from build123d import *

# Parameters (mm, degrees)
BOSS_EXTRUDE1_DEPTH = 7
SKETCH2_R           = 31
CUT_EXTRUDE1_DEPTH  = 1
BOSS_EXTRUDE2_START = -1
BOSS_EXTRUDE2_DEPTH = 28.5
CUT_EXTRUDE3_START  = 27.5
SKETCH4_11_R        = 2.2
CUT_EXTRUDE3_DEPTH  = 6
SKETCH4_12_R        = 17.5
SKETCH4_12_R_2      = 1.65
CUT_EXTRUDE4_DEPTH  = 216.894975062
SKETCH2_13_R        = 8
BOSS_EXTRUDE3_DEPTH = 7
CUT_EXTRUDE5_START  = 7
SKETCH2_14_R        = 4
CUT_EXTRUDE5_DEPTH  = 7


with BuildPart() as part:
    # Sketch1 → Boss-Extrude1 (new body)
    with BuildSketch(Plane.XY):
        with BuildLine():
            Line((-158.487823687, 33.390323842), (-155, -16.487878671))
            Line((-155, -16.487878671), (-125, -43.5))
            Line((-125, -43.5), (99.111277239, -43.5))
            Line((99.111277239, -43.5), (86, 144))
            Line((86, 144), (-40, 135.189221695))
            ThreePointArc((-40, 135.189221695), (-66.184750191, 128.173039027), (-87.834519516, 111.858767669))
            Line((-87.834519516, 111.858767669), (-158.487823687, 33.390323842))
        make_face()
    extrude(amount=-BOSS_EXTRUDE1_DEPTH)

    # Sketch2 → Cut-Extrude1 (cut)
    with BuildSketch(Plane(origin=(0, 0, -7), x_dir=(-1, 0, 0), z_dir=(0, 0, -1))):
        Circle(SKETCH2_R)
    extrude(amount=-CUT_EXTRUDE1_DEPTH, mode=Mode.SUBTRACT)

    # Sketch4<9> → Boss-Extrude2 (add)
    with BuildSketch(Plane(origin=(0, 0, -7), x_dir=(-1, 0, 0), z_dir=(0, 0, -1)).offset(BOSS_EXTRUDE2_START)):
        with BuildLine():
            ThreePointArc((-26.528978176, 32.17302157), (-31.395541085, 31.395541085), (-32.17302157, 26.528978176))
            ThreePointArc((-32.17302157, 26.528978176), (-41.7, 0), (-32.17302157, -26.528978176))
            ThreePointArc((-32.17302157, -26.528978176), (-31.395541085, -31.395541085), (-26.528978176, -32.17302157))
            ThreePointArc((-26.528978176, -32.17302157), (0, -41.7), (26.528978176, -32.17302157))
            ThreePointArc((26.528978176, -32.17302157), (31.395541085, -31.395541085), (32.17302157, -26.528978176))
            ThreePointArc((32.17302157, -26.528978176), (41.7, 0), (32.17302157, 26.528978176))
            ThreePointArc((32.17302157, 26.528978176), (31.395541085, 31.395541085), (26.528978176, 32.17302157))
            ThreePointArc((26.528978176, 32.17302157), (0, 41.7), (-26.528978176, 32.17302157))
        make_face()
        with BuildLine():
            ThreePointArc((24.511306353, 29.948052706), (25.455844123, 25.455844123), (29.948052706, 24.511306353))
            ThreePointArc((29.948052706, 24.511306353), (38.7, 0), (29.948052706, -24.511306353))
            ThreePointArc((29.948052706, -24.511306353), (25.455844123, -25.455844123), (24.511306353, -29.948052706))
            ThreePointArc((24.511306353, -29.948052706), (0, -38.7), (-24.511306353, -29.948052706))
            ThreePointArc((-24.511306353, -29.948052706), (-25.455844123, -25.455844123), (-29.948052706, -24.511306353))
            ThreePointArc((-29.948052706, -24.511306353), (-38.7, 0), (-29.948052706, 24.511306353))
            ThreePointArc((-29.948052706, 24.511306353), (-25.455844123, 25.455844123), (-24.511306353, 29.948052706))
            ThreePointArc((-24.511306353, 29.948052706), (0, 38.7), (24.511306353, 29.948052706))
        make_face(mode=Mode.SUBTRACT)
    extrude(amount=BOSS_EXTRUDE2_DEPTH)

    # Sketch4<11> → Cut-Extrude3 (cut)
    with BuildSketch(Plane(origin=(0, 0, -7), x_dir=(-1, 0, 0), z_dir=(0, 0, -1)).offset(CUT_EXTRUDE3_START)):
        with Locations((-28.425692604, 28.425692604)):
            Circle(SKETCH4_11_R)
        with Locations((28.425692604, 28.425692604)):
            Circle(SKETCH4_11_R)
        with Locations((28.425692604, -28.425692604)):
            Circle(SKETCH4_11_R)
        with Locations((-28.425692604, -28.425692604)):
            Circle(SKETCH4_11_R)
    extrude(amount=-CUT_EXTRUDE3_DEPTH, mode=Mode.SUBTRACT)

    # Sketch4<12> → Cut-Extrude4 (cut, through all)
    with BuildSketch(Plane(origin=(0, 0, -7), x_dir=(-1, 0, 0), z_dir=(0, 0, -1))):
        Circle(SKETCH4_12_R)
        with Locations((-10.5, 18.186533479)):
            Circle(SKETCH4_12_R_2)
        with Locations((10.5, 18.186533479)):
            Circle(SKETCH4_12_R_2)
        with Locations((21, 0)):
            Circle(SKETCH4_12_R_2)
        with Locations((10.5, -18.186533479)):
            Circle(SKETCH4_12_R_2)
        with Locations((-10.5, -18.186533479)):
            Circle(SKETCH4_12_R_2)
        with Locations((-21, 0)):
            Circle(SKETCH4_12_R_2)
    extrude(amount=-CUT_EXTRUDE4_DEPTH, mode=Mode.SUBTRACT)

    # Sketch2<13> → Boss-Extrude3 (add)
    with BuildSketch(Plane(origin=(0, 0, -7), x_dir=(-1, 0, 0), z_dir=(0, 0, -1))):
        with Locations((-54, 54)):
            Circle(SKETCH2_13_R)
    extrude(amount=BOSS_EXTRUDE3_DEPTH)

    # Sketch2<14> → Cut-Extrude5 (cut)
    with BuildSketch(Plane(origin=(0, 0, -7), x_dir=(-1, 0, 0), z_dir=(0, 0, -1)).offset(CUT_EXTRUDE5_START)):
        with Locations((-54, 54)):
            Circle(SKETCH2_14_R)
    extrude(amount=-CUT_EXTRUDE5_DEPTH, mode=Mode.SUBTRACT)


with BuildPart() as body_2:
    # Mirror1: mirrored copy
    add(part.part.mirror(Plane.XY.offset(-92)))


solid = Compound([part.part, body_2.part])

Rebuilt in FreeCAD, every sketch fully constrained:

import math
import FreeCAD as App
import Part
import Sketcher

V = App.Vector
Q = App.Units.Quantity

doc = App.newDocument("Part")
body = doc.addObject("PartDesign::Body", "Body")

sketch1 = body.newObject("Sketcher::SketchObject", "Sketch")
sketch1.AttachmentSupport = (doc.getObject("XY_Plane"), [""])
sketch1.MapMode = "FlatFace"
sketch1.addGeometry(Part.LineSegment(V(-158, 33, 0), V(-155, -16, 0)), False)
sketch1.addGeometry(Part.LineSegment(V(-155, -16, 0), V(-125, -44, 0)), False)
sketch1.addGeometry(Part.LineSegment(V(-125, -44, 0), V(99, -44, 0)), False)
sketch1.addGeometry(Part.LineSegment(V(99, -44, 0), V(86, 144, 0)), False)
sketch1.addGeometry(Part.LineSegment(V(86, 144, 0), V(-40, 135, 0)), False)
sketch1.addGeometry(Part.ArcOfCircle(Part.Circle(V(-35, 64, 0), V(0, 0, 1), 71), math.radians(94), math.radians(138)), False)
sketch1.addGeometry(Part.LineSegment(V(-88, 112, 0), V(-158, 33, 0)), False)
sketch1.addConstraint(Sketcher.Constraint("Coincident", 0, 2, 1, 1))
sketch1.addConstraint(Sketcher.Constraint("Coincident", 1, 2, 2, 1))
sketch1.addConstraint(Sketcher.Constraint("Coincident", 2, 2, 3, 1))
sketch1.addConstraint(Sketcher.Constraint("Coincident", 3, 2, 4, 1))
sketch1.addConstraint(Sketcher.Constraint("Tangent", 4, 2, 5, 1))
sketch1.addConstraint(Sketcher.Constraint("Tangent", 5, 2, 6, 1))
sketch1.addConstraint(Sketcher.Constraint("Coincident", 6, 2, 0, 1))
sketch1.addConstraint(Sketcher.Constraint("Horizontal", 2))
sketch1.addConstraint(Sketcher.Constraint("Parallel", 0, 3))
sketch1.addConstraint(Sketcher.Constraint("Perpendicular", 3, 4))
sketch1.addConstraint(Sketcher.Constraint("Perpendicular", 1, 6))
sketch1.addConstraint(Sketcher.Constraint("Angle", 0, Q("-86 deg")))
sketch1.addConstraint(Sketcher.Constraint("Angle", 1, Q("-42 deg")))
sketch1.addConstraint(Sketcher.Constraint("Distance", 0, 50.0))
sketch1.addConstraint(Sketcher.Constraint("DistanceX", 0, 2, -1, 1, 155.0))
sketch1.addConstraint(Sketcher.Constraint("DistanceX", 1, 2, -1, 1, 125.0))
sketch1.addConstraint(Sketcher.Constraint("DistanceX", -1, 1, 3, 2, 86.0))
sketch1.addConstraint(Sketcher.Constraint("DistanceY", -1, 1, 3, 2, 144.0))
sketch1.addConstraint(Sketcher.Constraint("DistanceX", 4, 2, -1, 1, 40.0))
sketch1.addConstraint(Sketcher.Constraint("DistanceY", 1, 2, -1, 1, 43.5))
pad1 = body.newObject("PartDesign::Pad", "Pad")
pad1.Profile = sketch1
pad1.Length = 7
pad1.Reversed = True

sketch2 = body.newObject("Sketcher::SketchObject", "Sketch001")
sketch2.AttachmentSupport = (doc.getObject("XY_Plane"), [""])
sketch2.MapMode = "FlatFace"
sketch2.AttachmentOffset = App.Placement(V(0, 0, -7), App.Rotation())
sketch2.addGeometry(Part.Circle(V(0, 0, 0), V(0, 0, 1), 31), False)
sketch2.addConstraint(Sketcher.Constraint("Coincident", 0, 3, -1, 1))
sketch2.addConstraint(Sketcher.Constraint("Diameter", 0, 62.0))
pocket1 = body.newObject("PartDesign::Pocket", "Pocket")
pocket1.Profile = sketch2
pocket1.Length = 1
pocket1.Reversed = True

sketch3 = body.newObject("Sketcher::SketchObject", "Sketch002")
sketch3.AttachmentSupport = (doc.getObject("XY_Plane"), [""])
sketch3.MapMode = "FlatFace"
sketch3.AttachmentOffset = App.Placement(V(0, 0, -6), App.Rotation())
sketch3.addGeometry(Part.ArcOfCircle(Part.Circle(V(28.4, 28.4, 0), V(0, 0, 1), 4.2), math.radians(-27), math.radians(117)), False)
sketch3.addGeometry(Part.ArcOfCircle(Part.Circle(V(0, 0, 0), V(0, 0, 1), 41.7), math.radians(-40), math.radians(40)), False)
sketch3.addGeometry(Part.ArcOfCircle(Part.Circle(V(28.4, -28.4, 0), V(0, 0, 1), 4.2), math.radians(-117), math.radians(27)), False)
sketch3.addGeometry(Part.ArcOfCircle(Part.Circle(V(0, 0, 0), V(0, 0, 1), 41.7), math.radians(-130), math.radians(-50)), False)
sketch3.addGeometry(Part.ArcOfCircle(Part.Circle(V(-28.4, -28.4, 0), V(0, 0, 1), 4.2), math.radians(153), math.radians(297)), False)
sketch3.addGeometry(Part.ArcOfCircle(Part.Circle(V(0, 0, 0), V(0, 0, 1), 41.7), math.radians(140), math.radians(220)), False)
sketch3.addGeometry(Part.ArcOfCircle(Part.Circle(V(-28.4, 28.4, 0), V(0, 0, 1), 4.2), math.radians(63), math.radians(207)), False)
sketch3.addGeometry(Part.ArcOfCircle(Part.Circle(V(0, 0, 0), V(0, 0, 1), 41.7), math.radians(50), math.radians(130)), False)
sketch3.addGeometry(Part.ArcOfCircle(Part.Circle(V(0, 0, 0), V(0, 0, 1), 38.7), math.radians(51), math.radians(129)), False)
sketch3.addGeometry(Part.ArcOfCircle(Part.Circle(V(-28.4, 28.4, 0), V(0, 0, 1), 4.2), math.radians(-111), math.radians(21)), False)
sketch3.addGeometry(Part.ArcOfCircle(Part.Circle(V(0, 0, 0), V(0, 0, 1), 38.7), math.radians(141), math.radians(219)), False)
sketch3.addGeometry(Part.ArcOfCircle(Part.Circle(V(-28.4, -28.4, 0), V(0, 0, 1), 4.2), math.radians(-21), math.radians(111)), False)
sketch3.addGeometry(Part.ArcOfCircle(Part.Circle(V(0, 0, 0), V(0, 0, 1), 38.7), math.radians(-129), math.radians(-51)), False)
sketch3.addGeometry(Part.ArcOfCircle(Part.Circle(V(28.4, -28.4, 0), V(0, 0, 1), 4.2), math.radians(69), math.radians(201)), False)
sketch3.addGeometry(Part.ArcOfCircle(Part.Circle(V(0, 0, 0), V(0, 0, 1), 38.7), math.radians(-39), math.radians(39)), False)
sketch3.addGeometry(Part.ArcOfCircle(Part.Circle(V(28.4, 28.4, 0), V(0, 0, 1), 4.2), math.radians(159), math.radians(291)), False)
sketch3.addConstraint(Sketcher.Constraint("Coincident", 0, 1, 1, 2))
sketch3.addConstraint(Sketcher.Constraint("Coincident", 1, 1, 2, 2))
sketch3.addConstraint(Sketcher.Constraint("Coincident", 2, 1, 3, 2))
sketch3.addConstraint(Sketcher.Constraint("Coincident", 3, 1, 4, 2))
sketch3.addConstraint(Sketcher.Constraint("Coincident", 4, 1, 5, 2))
sketch3.addConstraint(Sketcher.Constraint("Coincident", 5, 1, 6, 2))
sketch3.addConstraint(Sketcher.Constraint("Coincident", 6, 1, 7, 2))
sketch3.addConstraint(Sketcher.Constraint("Coincident", 7, 1, 0, 2))
sketch3.addConstraint(Sketcher.Constraint("Coincident", 8, 2, 9, 2))
sketch3.addConstraint(Sketcher.Constraint("Coincident", 9, 1, 10, 1))
sketch3.addConstraint(Sketcher.Constraint("Coincident", 10, 2, 11, 2))
sketch3.addConstraint(Sketcher.Constraint("Coincident", 11, 1, 12, 1))
sketch3.addConstraint(Sketcher.Constraint("Coincident", 12, 2, 13, 2))
sketch3.addConstraint(Sketcher.Constraint("Coincident", 13, 1, 14, 1))
sketch3.addConstraint(Sketcher.Constraint("Coincident", 14, 2, 15, 2))
sketch3.addConstraint(Sketcher.Constraint("Coincident", 15, 1, 8, 1))
sketch3.addConstraint(Sketcher.Constraint("Coincident", 1, 3, -1, 1))
sketch3.addConstraint(Sketcher.Constraint("Coincident", 3, 3, -1, 1))
sketch3.addConstraint(Sketcher.Constraint("Coincident", 5, 3, -1, 1))
sketch3.addConstraint(Sketcher.Constraint("Coincident", 7, 3, -1, 1))
sketch3.addConstraint(Sketcher.Constraint("Coincident", 8, 3, -1, 1))
sketch3.addConstraint(Sketcher.Constraint("Coincident", 10, 3, -1, 1))
sketch3.addConstraint(Sketcher.Constraint("Coincident", 12, 3, -1, 1))
sketch3.addConstraint(Sketcher.Constraint("Coincident", 14, 3, -1, 1))
sketch3.addConstraint(Sketcher.Constraint("Coincident", 9, 3, 6, 3))
sketch3.addConstraint(Sketcher.Constraint("Coincident", 11, 3, 4, 3))
sketch3.addConstraint(Sketcher.Constraint("Coincident", 13, 3, 2, 3))
sketch3.addConstraint(Sketcher.Constraint("Coincident", 15, 3, 0, 3))
sketch3.addConstraint(Sketcher.Constraint("Equal", 0, 2))
sketch3.addConstraint(Sketcher.Constraint("Equal", 1, 3))
sketch3.addConstraint(Sketcher.Constraint("Equal", 2, 4))
sketch3.addConstraint(Sketcher.Constraint("Equal", 3, 5))
sketch3.addConstraint(Sketcher.Constraint("Equal", 4, 6))
sketch3.addConstraint(Sketcher.Constraint("Equal", 5, 7))
sketch3.addConstraint(Sketcher.Constraint("Equal", 6, 9))
sketch3.addConstraint(Sketcher.Constraint("Equal", 8, 10))
sketch3.addConstraint(Sketcher.Constraint("Equal", 9, 11))
sketch3.addConstraint(Sketcher.Constraint("Equal", 10, 12))
sketch3.addConstraint(Sketcher.Constraint("Equal", 11, 13))
sketch3.addConstraint(Sketcher.Constraint("Equal", 12, 14))
sketch3.addConstraint(Sketcher.Constraint("Equal", 13, 15))
sketch3.addConstraint(Sketcher.Constraint("Symmetric", 0, 3, 4, 3, -1, 1))
sketch3.addConstraint(Sketcher.Constraint("Symmetric", 2, 3, 6, 3, -1, 1))
sketch3.addConstraint(Sketcher.Constraint("Symmetric", 2, 3, 4, 3, -2))
sketch3.addConstraint(Sketcher.Constraint("Radius", 0, 4.2))
sketch3.addConstraint(Sketcher.Constraint("Radius", 1, 41.7))
sketch3.addConstraint(Sketcher.Constraint("Radius", 8, 38.7))
sketch3.addConstraint(Sketcher.Constraint("DistanceX", -1, 1, 0, 1, 32.173022))
sketch3.addConstraint(Sketcher.Constraint("DistanceX", -1, 1, 2, 1, 26.528978))
pad2 = body.newObject("PartDesign::Pad", "Pad001")
pad2.Profile = sketch3
pad2.Length = 28.5
pad2.Reversed = True

sketch4 = body.newObject("Sketcher::SketchObject", "Sketch003")
sketch4.AttachmentSupport = (doc.getObject("XY_Plane"), [""])
sketch4.MapMode = "FlatFace"
sketch4.AttachmentOffset = App.Placement(V(0, 0, -34.5), App.Rotation())
sketch4.addGeometry(Part.Circle(V(28.4, 28.4, 0), V(0, 0, 1), 2.2), False)
sketch4.addGeometry(Part.Circle(V(-28.4, 28.4, 0), V(0, 0, 1), 2.2), False)
sketch4.addGeometry(Part.Circle(V(-28.4, -28.4, 0), V(0, 0, 1), 2.2), False)
sketch4.addGeometry(Part.Circle(V(28.4, -28.4, 0), V(0, 0, 1), 2.2), False)
sketch4.addConstraint(Sketcher.Constraint("Equal", 0, 1))
sketch4.addConstraint(Sketcher.Constraint("Equal", 1, 2))
sketch4.addConstraint(Sketcher.Constraint("Equal", 2, 3))
sketch4.addConstraint(Sketcher.Constraint("Symmetric", 0, 3, 2, 3, -1, 1))
sketch4.addConstraint(Sketcher.Constraint("Symmetric", 1, 3, 3, 3, -1, 1))
sketch4.addConstraint(Sketcher.Constraint("Symmetric", 0, 3, 1, 3, -2))
sketch4.addConstraint(Sketcher.Constraint("Diameter", 0, 4.4))
sketch4.addConstraint(Sketcher.Constraint("DistanceX", -1, 1, 0, 3, 28.425693))
sketch4.addConstraint(Sketcher.Constraint("DistanceY", -1, 1, 0, 3, 28.425693))
pocket2 = body.newObject("PartDesign::Pocket", "Pocket001")
pocket2.Profile = sketch4
pocket2.Length = 6
pocket2.Reversed = True

sketch5 = body.newObject("Sketcher::SketchObject", "Sketch004")
sketch5.AttachmentSupport = (doc.getObject("XY_Plane"), [""])
sketch5.MapMode = "FlatFace"
sketch5.AttachmentOffset = App.Placement(V(0, 0, -7), App.Rotation())
sketch5.addGeometry(Part.Circle(V(0, 0, 0), V(0, 0, 1), 17.5), False)
sketch5.addGeometry(Part.Circle(V(10.5, 18.2, 0), V(0, 0, 1), 1.6), False)
sketch5.addGeometry(Part.Circle(V(-10.5, 18.2, 0), V(0, 0, 1), 1.6), False)
sketch5.addGeometry(Part.Circle(V(-21, 0, 0), V(0, 0, 1), 1.6), False)
sketch5.addGeometry(Part.Circle(V(-10.5, -18.2, 0), V(0, 0, 1), 1.6), False)
sketch5.addGeometry(Part.Circle(V(10.5, -18.2, 0), V(0, 0, 1), 1.6), False)
sketch5.addGeometry(Part.Circle(V(21, 0, 0), V(0, 0, 1), 1.6), False)
sketch5.addConstraint(Sketcher.Constraint("Coincident", 0, 3, -1, 1))
sketch5.addConstraint(Sketcher.Constraint("Equal", 1, 2))
sketch5.addConstraint(Sketcher.Constraint("Equal", 2, 3))
sketch5.addConstraint(Sketcher.Constraint("Equal", 3, 4))
sketch5.addConstraint(Sketcher.Constraint("Equal", 4, 5))
sketch5.addConstraint(Sketcher.Constraint("Equal", 5, 6))
sketch5.addConstraint(Sketcher.Constraint("Symmetric", 1, 3, 4, 3, -1, 1))
sketch5.addConstraint(Sketcher.Constraint("Symmetric", 2, 3, 5, 3, -1, 1))
sketch5.addConstraint(Sketcher.Constraint("Symmetric", 3, 3, 6, 3, -1, 1))
sketch5.addConstraint(Sketcher.Constraint("Symmetric", 1, 3, 2, 3, -2))
sketch5.addConstraint(Sketcher.Constraint("PointOnObject", 3, 3, -1))
sketch5.addConstraint(Sketcher.Constraint("Diameter", 0, 35.0))
sketch5.addConstraint(Sketcher.Constraint("Diameter", 1, 3.3))
sketch5.addConstraint(Sketcher.Constraint("DistanceX", 3, 3, -1, 1, 21.0))
sketch5.addConstraint(Sketcher.Constraint("DistanceX", 2, 3, 1, 3, 21.0))
sketch5.addConstraint(Sketcher.Constraint("DistanceY", -1, 1, 1, 3, 18.186533))
pocket3 = body.newObject("PartDesign::Pocket", "Pocket002")
pocket3.Profile = sketch5
pocket3.Type = "ThroughAll"
pocket3.Reversed = True

sketch6 = body.newObject("Sketcher::SketchObject", "Sketch005")
sketch6.AttachmentSupport = (doc.getObject("XY_Plane"), [""])
sketch6.MapMode = "FlatFace"
sketch6.AttachmentOffset = App.Placement(V(0, 0, -7), App.Rotation())
sketch6.addGeometry(Part.Circle(V(54, 54, 0), V(0, 0, 1), 8), False)
sketch6.addConstraint(Sketcher.Constraint("Diameter", 0, 16.0))
sketch6.addConstraint(Sketcher.Constraint("DistanceX", -1, 1, 0, 3, 54.0))
sketch6.addConstraint(Sketcher.Constraint("DistanceY", -1, 1, 0, 3, 54.0))
pad3 = body.newObject("PartDesign::Pad", "Pad002")
pad3.Profile = sketch6
pad3.Length = 7
pad3.Reversed = True

sketch7 = body.newObject("Sketcher::SketchObject", "Sketch006")
sketch7.AttachmentSupport = (doc.getObject("XY_Plane"), [""])
sketch7.MapMode = "FlatFace"
sketch7.AttachmentOffset = App.Placement(V(0, 0, -14), App.Rotation())
sketch7.addGeometry(Part.Circle(V(54, 54, 0), V(0, 0, 1), 4), False)
sketch7.addConstraint(Sketcher.Constraint("Diameter", 0, 8.0))
sketch7.addConstraint(Sketcher.Constraint("DistanceX", -1, 1, 0, 3, 54.0))
sketch7.addConstraint(Sketcher.Constraint("DistanceY", -1, 1, 0, 3, 54.0))
pocket4 = body.newObject("PartDesign::Pocket", "Pocket003")
pocket4.Profile = sketch7
pocket4.Length = 7
pocket4.Reversed = True
body2 = doc.addObject("PartDesign::Body", "Body001")
doc.recompute()

mirroring = doc.addObject("Part::Mirroring", "Mirroring")
mirroring.Source = body
mirroring.Base = V(0, 0, -92)
mirroring.Normal = V(0, 0, 1)
body2.BaseFeature = mirroring
doc.recompute()
mirroring.Visibility = False

doc.recompute()
